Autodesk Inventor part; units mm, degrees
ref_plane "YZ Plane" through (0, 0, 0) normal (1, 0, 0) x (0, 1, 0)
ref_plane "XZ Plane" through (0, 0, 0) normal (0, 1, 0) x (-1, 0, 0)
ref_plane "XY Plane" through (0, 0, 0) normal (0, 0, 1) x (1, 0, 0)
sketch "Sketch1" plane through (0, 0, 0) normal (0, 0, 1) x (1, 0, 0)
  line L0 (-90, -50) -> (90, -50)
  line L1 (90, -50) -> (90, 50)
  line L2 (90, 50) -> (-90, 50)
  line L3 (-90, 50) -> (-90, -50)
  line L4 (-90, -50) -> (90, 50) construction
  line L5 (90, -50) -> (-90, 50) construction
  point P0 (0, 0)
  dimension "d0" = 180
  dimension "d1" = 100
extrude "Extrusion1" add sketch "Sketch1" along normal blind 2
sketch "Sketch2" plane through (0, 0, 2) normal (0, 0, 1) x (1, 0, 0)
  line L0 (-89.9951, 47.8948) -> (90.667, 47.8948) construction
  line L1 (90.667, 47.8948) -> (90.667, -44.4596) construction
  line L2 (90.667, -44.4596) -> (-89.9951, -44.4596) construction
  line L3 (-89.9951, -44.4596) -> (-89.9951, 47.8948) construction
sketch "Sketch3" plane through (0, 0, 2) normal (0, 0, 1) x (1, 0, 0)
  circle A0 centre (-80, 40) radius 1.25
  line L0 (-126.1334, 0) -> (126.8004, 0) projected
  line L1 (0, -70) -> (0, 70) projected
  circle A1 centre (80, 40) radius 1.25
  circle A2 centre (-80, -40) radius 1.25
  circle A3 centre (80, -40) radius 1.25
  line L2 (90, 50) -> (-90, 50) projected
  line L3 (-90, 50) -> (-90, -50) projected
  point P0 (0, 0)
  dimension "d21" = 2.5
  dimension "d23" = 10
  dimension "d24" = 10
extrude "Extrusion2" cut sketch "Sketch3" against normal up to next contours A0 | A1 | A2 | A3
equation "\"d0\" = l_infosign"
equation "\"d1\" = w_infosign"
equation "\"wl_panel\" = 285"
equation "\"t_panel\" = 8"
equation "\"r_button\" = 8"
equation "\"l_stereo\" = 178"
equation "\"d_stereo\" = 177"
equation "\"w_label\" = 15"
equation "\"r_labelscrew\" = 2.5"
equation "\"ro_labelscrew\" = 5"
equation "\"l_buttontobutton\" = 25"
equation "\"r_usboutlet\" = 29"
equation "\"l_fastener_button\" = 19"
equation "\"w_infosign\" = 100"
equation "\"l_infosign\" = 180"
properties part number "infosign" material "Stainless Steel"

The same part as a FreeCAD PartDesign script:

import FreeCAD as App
import Part
import Sketcher

doc = App.newDocument("Part")
body = doc.addObject("PartDesign::Body", "Body")

# Sketch on XY plane
sketch1 = body.newObject("Sketcher::SketchObject", "Sketch")
sketch1.AttachmentSupport = (doc.getObject("XY_Plane"), [""])
sketch1.MapMode = "FlatFace"
sketch1.addGeometry([
    Part.LineSegment(App.Vector(-90, 50, 0), App.Vector(-90, -50, 0)),
    Part.LineSegment(App.Vector(-90, -50, 0), App.Vector(90, -50, 0)),
    Part.LineSegment(App.Vector(90, -50, 0), App.Vector(90, 50, 0)),
    Part.LineSegment(App.Vector(90, 50, 0), App.Vector(-90, 50, 0)),
], False)
sketch1.addConstraint([
    Sketcher.Constraint("Coincident", 0, 2, 1, 1),
    Sketcher.Constraint("Coincident", 1, 2, 2, 1),
    Sketcher.Constraint("Coincident", 2, 2, 3, 1),
    Sketcher.Constraint("Coincident", 3, 2, 0, 1),
    Sketcher.Constraint("Vertical", 0),
    Sketcher.Constraint("Horizontal", 1),
    Sketcher.Constraint("Vertical", 2),
    Sketcher.Constraint("Horizontal", 3),
    Sketcher.Constraint("Symmetric", 0, 2, 2, 2, -1, 1),
    Sketcher.Constraint("DistanceX", 1, 1, 1, 2, 180.0),
    Sketcher.Constraint("DistanceY", 0, 2, 0, 1, 100.0),
])
pad1 = body.newObject("PartDesign::Pad", "Pad")
pad1.Profile = sketch1
pad1.Length = 2

# Sketch on XY plane
sketch2 = body.newObject("Sketcher::SketchObject", "Sketch001")
sketch2.AttachmentSupport = (doc.getObject("XY_Plane"), [""])
sketch2.MapMode = "FlatFace"
sketch2.AttachmentOffset = App.Placement(App.Vector(0, 0, 2), App.Rotation())
sketch2.addGeometry([
    Part.Circle(App.Vector(-80, 40, 0), App.Vector(0, 0, 1), 1.2),
    Part.Circle(App.Vector(80, 40, 0), App.Vector(0, 0, 1), 1.2),
    Part.Circle(App.Vector(-80, -40, 0), App.Vector(0, 0, 1), 1.2),
    Part.Circle(App.Vector(80, -40, 0), App.Vector(0, 0, 1), 1.2),
], False)
sketch2.addConstraint([
    Sketcher.Constraint("Equal", 0, 1),
    Sketcher.Constraint("Equal", 1, 2),
    Sketcher.Constraint("Equal", 2, 3),
    Sketcher.Constraint("Symmetric", 1, 3, 2, 3, -1, 1),
    Sketcher.Constraint("Symmetric", 0, 3, 3, 3, -1, 1),
    Sketcher.Constraint("Symmetric", 0, 3, 1, 3, -2),
    Sketcher.Constraint("Diameter", 0, 2.5),
    Sketcher.Constraint("DistanceX", 0, 3, -1, 1, 80.0),
    Sketcher.Constraint("DistanceY", -1, 1, 0, 3, 40.0),
])
pocket1 = body.newObject("PartDesign::Pocket", "Pocket")
pocket1.Profile = sketch2
pocket1.Length = 2

doc.recompute()
